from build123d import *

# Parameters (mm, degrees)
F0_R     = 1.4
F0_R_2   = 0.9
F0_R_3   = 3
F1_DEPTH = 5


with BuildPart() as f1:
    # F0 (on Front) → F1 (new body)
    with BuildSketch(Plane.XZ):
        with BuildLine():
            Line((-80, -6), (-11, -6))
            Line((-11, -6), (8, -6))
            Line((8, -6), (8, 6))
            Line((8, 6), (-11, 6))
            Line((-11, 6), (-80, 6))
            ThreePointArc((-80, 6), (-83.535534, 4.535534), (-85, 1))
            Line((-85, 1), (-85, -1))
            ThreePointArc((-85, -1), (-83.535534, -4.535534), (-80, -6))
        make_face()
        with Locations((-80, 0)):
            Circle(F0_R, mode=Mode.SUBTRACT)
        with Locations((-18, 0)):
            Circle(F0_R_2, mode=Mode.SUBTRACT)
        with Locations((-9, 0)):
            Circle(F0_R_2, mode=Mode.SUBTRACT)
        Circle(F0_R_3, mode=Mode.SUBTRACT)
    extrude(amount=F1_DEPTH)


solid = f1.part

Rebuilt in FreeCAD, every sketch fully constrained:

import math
import FreeCAD as App
import Part
import Sketcher

V = App.Vector
Q = App.Units.Quantity

doc = App.newDocument("Part")
body = doc.addObject("PartDesign::Body", "Body")

sketch1 = doc.addObject("Sketcher::SketchObject", "Sketch")
body.addObject(sketch1)
sketch1.AttachmentSupport = (doc.XZ_Plane, [""])
sketch1.MapMode = "FlatFace"
sketch1.addGeometry(Part.LineSegment(V(-80, -6, 0), V(8, -6, 0)), False)
sketch1.addGeometry(Part.LineSegment(V(8, -6, 0), V(8, 6, 0)), False)
sketch1.addGeometry(Part.LineSegment(V(8, 6, 0), V(-80, 6, 0)), False)
sketch1.addGeometry(Part.ArcOfCircle(Part.Circle(V(-80, 1, 0), V(0, 0, 1), 5), math.radians(90), math.radians(180)), False)
sketch1.addGeometry(Part.LineSegment(V(-85, 1, 0), V(-85, -1, 0)), False)
sketch1.addGeometry(Part.ArcOfCircle(Part.Circle(V(-80, -1, 0), V(0, 0, 1), 5), math.radians(180), math.radians(270)), False)
sketch1.addGeometry(Part.Circle(V(-80, 0, 0), V(0, 0, 1), 1.4), False)
sketch1.addGeometry(Part.Circle(V(-18, 0, 0), V(0, 0, 1), 0.9), False)
sketch1.addGeometry(Part.Circle(V(-9, 0, 0), V(0, 0, 1), 0.9), False)
sketch1.addGeometry(Part.Circle(V(0, 0, 0), V(0, 0, 1), 3), False)
sketch1.addConstraint(Sketcher.Constraint("Coincident", 0, 2, 1, 1))
sketch1.addConstraint(Sketcher.Constraint("Coincident", 1, 2, 2, 1))
sketch1.addConstraint(Sketcher.Constraint("Tangent", 2, 2, 3, 1))
sketch1.addConstraint(Sketcher.Constraint("Tangent", 3, 2, 4, 1))
sketch1.addConstraint(Sketcher.Constraint("Tangent", 4, 2, 5, 1))
sketch1.addConstraint(Sketcher.Constraint("Tangent", 5, 2, 0, 1))
sketch1.addConstraint(Sketcher.Constraint("Horizontal", 0))
sketch1.addConstraint(Sketcher.Constraint("Vertical", 1))
sketch1.addConstraint(Sketcher.Constraint("Horizontal", 2))
sketch1.addConstraint(Sketcher.Constraint("Vertical", 4))
sketch1.addConstraint(Sketcher.Constraint("Coincident", 9, 3, -1, 1))
sketch1.addConstraint(Sketcher.Constraint("Equal", 3, 5))
sketch1.addConstraint(Sketcher.Constraint("Equal", 7, 8))
sketch1.addConstraint(Sketcher.Constraint("PointOnObject", 6, 3, -1))
sketch1.addConstraint(Sketcher.Constraint("PointOnObject", 7, 3, -1))
sketch1.addConstraint(Sketcher.Constraint("PointOnObject", 8, 3, -1))
sketch1.addConstraint(Sketcher.Constraint("Vertical", 5, 3, 6, 3))
sketch1.addConstraint(Sketcher.Constraint("Diameter", 9, Q("6 mm")))
sketch1.addConstraint(Sketcher.Constraint("Radius", 3, Q("5 mm")))
sketch1.addConstraint(Sketcher.Constraint("Diameter", 6, Q("2.8 mm")))
sketch1.addConstraint(Sketcher.Constraint("Diameter", 7, Q("1.8 mm")))
sketch1.addConstraint(Sketcher.Constraint("DistanceX", 0, 1, 0, 2, Q("88 mm")))
sketch1.addConstraint(Sketcher.Constraint("DistanceY", 1, 1, 1, 2, Q("12 mm")))
sketch1.addConstraint(Sketcher.Constraint("DistanceX", 3, 3, -1, 1, Q("80 mm")))
sketch1.addConstraint(Sketcher.Constraint("DistanceY", -1, 1, 3, 3, Q("1 mm")))
sketch1.addConstraint(Sketcher.Constraint("DistanceX", 7, 3, -1, 1, Q("18 mm")))
sketch1.addConstraint(Sketcher.Constraint("DistanceX", 8, 3, -1, 1, Q("9 mm")))
pad1 = doc.addObject("PartDesign::Pad", "Pad")
body.addObject(pad1)
pad1.Profile = sketch1
pad1.Length = 5

doc.recompute()
